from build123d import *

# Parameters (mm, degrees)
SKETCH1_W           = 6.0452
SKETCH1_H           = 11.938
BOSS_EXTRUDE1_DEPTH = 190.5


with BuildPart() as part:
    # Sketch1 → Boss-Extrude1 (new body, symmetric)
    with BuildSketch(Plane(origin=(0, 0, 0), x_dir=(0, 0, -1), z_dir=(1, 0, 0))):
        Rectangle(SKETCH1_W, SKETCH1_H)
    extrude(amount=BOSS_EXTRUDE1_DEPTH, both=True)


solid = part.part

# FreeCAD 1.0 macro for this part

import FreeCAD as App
import Part
import Sketcher

V = App.Vector
Q = App.Units.Quantity


def add_polygon(sketch, points):
    """Adds a closed chain of lines whose ends are joined by coincident constraints."""
    first, n = sketch.GeometryCount, len(points)
    for a, b in zip(points, points[1:] + points[:1]):
        sketch.addGeometry(Part.LineSegment(App.Vector(*a, 0), App.Vector(*b, 0)), False)
    for i in range(n):
        sketch.addConstraint(Sketcher.Constraint("Coincident", first + i, 2, first + (i + 1) % n, 1))

doc = App.newDocument("Part")
body = doc.addObject("PartDesign::Body", "Body")

# Sketch on YZ plane
sketch1 = body.newObject("Sketcher::SketchObject", "Sketch")
sketch1.AttachmentSupport = (doc.getObject("YZ_Plane"), [""])
sketch1.MapMode = "FlatFace"
add_polygon(sketch1, [(6, 3), (-6, 3), (-6, -3), (6, -3)])  # lines 0-3
sketch1.addConstraint([
    Sketcher.Constraint("Horizontal", 0),
    Sketcher.Constraint("Vertical", 1),
    Sketcher.Constraint("Horizontal", 2),
    Sketcher.Constraint("Vertical", 3),
    Sketcher.Constraint("Symmetric", 0, 2, 2, 2, -1, 1),
    Sketcher.Constraint("DistanceX", 0, 2, 0, 1, Q("0.47 in")),
    Sketcher.Constraint("DistanceY", 1, 2, 1, 1, Q("0.238 in")),
])
pad1 = body.newObject("PartDesign::Pad", "Pad")
pad1.Profile = sketch1
pad1.Length = Q("15 in")
pad1.Midplane = True

doc.recompute()
